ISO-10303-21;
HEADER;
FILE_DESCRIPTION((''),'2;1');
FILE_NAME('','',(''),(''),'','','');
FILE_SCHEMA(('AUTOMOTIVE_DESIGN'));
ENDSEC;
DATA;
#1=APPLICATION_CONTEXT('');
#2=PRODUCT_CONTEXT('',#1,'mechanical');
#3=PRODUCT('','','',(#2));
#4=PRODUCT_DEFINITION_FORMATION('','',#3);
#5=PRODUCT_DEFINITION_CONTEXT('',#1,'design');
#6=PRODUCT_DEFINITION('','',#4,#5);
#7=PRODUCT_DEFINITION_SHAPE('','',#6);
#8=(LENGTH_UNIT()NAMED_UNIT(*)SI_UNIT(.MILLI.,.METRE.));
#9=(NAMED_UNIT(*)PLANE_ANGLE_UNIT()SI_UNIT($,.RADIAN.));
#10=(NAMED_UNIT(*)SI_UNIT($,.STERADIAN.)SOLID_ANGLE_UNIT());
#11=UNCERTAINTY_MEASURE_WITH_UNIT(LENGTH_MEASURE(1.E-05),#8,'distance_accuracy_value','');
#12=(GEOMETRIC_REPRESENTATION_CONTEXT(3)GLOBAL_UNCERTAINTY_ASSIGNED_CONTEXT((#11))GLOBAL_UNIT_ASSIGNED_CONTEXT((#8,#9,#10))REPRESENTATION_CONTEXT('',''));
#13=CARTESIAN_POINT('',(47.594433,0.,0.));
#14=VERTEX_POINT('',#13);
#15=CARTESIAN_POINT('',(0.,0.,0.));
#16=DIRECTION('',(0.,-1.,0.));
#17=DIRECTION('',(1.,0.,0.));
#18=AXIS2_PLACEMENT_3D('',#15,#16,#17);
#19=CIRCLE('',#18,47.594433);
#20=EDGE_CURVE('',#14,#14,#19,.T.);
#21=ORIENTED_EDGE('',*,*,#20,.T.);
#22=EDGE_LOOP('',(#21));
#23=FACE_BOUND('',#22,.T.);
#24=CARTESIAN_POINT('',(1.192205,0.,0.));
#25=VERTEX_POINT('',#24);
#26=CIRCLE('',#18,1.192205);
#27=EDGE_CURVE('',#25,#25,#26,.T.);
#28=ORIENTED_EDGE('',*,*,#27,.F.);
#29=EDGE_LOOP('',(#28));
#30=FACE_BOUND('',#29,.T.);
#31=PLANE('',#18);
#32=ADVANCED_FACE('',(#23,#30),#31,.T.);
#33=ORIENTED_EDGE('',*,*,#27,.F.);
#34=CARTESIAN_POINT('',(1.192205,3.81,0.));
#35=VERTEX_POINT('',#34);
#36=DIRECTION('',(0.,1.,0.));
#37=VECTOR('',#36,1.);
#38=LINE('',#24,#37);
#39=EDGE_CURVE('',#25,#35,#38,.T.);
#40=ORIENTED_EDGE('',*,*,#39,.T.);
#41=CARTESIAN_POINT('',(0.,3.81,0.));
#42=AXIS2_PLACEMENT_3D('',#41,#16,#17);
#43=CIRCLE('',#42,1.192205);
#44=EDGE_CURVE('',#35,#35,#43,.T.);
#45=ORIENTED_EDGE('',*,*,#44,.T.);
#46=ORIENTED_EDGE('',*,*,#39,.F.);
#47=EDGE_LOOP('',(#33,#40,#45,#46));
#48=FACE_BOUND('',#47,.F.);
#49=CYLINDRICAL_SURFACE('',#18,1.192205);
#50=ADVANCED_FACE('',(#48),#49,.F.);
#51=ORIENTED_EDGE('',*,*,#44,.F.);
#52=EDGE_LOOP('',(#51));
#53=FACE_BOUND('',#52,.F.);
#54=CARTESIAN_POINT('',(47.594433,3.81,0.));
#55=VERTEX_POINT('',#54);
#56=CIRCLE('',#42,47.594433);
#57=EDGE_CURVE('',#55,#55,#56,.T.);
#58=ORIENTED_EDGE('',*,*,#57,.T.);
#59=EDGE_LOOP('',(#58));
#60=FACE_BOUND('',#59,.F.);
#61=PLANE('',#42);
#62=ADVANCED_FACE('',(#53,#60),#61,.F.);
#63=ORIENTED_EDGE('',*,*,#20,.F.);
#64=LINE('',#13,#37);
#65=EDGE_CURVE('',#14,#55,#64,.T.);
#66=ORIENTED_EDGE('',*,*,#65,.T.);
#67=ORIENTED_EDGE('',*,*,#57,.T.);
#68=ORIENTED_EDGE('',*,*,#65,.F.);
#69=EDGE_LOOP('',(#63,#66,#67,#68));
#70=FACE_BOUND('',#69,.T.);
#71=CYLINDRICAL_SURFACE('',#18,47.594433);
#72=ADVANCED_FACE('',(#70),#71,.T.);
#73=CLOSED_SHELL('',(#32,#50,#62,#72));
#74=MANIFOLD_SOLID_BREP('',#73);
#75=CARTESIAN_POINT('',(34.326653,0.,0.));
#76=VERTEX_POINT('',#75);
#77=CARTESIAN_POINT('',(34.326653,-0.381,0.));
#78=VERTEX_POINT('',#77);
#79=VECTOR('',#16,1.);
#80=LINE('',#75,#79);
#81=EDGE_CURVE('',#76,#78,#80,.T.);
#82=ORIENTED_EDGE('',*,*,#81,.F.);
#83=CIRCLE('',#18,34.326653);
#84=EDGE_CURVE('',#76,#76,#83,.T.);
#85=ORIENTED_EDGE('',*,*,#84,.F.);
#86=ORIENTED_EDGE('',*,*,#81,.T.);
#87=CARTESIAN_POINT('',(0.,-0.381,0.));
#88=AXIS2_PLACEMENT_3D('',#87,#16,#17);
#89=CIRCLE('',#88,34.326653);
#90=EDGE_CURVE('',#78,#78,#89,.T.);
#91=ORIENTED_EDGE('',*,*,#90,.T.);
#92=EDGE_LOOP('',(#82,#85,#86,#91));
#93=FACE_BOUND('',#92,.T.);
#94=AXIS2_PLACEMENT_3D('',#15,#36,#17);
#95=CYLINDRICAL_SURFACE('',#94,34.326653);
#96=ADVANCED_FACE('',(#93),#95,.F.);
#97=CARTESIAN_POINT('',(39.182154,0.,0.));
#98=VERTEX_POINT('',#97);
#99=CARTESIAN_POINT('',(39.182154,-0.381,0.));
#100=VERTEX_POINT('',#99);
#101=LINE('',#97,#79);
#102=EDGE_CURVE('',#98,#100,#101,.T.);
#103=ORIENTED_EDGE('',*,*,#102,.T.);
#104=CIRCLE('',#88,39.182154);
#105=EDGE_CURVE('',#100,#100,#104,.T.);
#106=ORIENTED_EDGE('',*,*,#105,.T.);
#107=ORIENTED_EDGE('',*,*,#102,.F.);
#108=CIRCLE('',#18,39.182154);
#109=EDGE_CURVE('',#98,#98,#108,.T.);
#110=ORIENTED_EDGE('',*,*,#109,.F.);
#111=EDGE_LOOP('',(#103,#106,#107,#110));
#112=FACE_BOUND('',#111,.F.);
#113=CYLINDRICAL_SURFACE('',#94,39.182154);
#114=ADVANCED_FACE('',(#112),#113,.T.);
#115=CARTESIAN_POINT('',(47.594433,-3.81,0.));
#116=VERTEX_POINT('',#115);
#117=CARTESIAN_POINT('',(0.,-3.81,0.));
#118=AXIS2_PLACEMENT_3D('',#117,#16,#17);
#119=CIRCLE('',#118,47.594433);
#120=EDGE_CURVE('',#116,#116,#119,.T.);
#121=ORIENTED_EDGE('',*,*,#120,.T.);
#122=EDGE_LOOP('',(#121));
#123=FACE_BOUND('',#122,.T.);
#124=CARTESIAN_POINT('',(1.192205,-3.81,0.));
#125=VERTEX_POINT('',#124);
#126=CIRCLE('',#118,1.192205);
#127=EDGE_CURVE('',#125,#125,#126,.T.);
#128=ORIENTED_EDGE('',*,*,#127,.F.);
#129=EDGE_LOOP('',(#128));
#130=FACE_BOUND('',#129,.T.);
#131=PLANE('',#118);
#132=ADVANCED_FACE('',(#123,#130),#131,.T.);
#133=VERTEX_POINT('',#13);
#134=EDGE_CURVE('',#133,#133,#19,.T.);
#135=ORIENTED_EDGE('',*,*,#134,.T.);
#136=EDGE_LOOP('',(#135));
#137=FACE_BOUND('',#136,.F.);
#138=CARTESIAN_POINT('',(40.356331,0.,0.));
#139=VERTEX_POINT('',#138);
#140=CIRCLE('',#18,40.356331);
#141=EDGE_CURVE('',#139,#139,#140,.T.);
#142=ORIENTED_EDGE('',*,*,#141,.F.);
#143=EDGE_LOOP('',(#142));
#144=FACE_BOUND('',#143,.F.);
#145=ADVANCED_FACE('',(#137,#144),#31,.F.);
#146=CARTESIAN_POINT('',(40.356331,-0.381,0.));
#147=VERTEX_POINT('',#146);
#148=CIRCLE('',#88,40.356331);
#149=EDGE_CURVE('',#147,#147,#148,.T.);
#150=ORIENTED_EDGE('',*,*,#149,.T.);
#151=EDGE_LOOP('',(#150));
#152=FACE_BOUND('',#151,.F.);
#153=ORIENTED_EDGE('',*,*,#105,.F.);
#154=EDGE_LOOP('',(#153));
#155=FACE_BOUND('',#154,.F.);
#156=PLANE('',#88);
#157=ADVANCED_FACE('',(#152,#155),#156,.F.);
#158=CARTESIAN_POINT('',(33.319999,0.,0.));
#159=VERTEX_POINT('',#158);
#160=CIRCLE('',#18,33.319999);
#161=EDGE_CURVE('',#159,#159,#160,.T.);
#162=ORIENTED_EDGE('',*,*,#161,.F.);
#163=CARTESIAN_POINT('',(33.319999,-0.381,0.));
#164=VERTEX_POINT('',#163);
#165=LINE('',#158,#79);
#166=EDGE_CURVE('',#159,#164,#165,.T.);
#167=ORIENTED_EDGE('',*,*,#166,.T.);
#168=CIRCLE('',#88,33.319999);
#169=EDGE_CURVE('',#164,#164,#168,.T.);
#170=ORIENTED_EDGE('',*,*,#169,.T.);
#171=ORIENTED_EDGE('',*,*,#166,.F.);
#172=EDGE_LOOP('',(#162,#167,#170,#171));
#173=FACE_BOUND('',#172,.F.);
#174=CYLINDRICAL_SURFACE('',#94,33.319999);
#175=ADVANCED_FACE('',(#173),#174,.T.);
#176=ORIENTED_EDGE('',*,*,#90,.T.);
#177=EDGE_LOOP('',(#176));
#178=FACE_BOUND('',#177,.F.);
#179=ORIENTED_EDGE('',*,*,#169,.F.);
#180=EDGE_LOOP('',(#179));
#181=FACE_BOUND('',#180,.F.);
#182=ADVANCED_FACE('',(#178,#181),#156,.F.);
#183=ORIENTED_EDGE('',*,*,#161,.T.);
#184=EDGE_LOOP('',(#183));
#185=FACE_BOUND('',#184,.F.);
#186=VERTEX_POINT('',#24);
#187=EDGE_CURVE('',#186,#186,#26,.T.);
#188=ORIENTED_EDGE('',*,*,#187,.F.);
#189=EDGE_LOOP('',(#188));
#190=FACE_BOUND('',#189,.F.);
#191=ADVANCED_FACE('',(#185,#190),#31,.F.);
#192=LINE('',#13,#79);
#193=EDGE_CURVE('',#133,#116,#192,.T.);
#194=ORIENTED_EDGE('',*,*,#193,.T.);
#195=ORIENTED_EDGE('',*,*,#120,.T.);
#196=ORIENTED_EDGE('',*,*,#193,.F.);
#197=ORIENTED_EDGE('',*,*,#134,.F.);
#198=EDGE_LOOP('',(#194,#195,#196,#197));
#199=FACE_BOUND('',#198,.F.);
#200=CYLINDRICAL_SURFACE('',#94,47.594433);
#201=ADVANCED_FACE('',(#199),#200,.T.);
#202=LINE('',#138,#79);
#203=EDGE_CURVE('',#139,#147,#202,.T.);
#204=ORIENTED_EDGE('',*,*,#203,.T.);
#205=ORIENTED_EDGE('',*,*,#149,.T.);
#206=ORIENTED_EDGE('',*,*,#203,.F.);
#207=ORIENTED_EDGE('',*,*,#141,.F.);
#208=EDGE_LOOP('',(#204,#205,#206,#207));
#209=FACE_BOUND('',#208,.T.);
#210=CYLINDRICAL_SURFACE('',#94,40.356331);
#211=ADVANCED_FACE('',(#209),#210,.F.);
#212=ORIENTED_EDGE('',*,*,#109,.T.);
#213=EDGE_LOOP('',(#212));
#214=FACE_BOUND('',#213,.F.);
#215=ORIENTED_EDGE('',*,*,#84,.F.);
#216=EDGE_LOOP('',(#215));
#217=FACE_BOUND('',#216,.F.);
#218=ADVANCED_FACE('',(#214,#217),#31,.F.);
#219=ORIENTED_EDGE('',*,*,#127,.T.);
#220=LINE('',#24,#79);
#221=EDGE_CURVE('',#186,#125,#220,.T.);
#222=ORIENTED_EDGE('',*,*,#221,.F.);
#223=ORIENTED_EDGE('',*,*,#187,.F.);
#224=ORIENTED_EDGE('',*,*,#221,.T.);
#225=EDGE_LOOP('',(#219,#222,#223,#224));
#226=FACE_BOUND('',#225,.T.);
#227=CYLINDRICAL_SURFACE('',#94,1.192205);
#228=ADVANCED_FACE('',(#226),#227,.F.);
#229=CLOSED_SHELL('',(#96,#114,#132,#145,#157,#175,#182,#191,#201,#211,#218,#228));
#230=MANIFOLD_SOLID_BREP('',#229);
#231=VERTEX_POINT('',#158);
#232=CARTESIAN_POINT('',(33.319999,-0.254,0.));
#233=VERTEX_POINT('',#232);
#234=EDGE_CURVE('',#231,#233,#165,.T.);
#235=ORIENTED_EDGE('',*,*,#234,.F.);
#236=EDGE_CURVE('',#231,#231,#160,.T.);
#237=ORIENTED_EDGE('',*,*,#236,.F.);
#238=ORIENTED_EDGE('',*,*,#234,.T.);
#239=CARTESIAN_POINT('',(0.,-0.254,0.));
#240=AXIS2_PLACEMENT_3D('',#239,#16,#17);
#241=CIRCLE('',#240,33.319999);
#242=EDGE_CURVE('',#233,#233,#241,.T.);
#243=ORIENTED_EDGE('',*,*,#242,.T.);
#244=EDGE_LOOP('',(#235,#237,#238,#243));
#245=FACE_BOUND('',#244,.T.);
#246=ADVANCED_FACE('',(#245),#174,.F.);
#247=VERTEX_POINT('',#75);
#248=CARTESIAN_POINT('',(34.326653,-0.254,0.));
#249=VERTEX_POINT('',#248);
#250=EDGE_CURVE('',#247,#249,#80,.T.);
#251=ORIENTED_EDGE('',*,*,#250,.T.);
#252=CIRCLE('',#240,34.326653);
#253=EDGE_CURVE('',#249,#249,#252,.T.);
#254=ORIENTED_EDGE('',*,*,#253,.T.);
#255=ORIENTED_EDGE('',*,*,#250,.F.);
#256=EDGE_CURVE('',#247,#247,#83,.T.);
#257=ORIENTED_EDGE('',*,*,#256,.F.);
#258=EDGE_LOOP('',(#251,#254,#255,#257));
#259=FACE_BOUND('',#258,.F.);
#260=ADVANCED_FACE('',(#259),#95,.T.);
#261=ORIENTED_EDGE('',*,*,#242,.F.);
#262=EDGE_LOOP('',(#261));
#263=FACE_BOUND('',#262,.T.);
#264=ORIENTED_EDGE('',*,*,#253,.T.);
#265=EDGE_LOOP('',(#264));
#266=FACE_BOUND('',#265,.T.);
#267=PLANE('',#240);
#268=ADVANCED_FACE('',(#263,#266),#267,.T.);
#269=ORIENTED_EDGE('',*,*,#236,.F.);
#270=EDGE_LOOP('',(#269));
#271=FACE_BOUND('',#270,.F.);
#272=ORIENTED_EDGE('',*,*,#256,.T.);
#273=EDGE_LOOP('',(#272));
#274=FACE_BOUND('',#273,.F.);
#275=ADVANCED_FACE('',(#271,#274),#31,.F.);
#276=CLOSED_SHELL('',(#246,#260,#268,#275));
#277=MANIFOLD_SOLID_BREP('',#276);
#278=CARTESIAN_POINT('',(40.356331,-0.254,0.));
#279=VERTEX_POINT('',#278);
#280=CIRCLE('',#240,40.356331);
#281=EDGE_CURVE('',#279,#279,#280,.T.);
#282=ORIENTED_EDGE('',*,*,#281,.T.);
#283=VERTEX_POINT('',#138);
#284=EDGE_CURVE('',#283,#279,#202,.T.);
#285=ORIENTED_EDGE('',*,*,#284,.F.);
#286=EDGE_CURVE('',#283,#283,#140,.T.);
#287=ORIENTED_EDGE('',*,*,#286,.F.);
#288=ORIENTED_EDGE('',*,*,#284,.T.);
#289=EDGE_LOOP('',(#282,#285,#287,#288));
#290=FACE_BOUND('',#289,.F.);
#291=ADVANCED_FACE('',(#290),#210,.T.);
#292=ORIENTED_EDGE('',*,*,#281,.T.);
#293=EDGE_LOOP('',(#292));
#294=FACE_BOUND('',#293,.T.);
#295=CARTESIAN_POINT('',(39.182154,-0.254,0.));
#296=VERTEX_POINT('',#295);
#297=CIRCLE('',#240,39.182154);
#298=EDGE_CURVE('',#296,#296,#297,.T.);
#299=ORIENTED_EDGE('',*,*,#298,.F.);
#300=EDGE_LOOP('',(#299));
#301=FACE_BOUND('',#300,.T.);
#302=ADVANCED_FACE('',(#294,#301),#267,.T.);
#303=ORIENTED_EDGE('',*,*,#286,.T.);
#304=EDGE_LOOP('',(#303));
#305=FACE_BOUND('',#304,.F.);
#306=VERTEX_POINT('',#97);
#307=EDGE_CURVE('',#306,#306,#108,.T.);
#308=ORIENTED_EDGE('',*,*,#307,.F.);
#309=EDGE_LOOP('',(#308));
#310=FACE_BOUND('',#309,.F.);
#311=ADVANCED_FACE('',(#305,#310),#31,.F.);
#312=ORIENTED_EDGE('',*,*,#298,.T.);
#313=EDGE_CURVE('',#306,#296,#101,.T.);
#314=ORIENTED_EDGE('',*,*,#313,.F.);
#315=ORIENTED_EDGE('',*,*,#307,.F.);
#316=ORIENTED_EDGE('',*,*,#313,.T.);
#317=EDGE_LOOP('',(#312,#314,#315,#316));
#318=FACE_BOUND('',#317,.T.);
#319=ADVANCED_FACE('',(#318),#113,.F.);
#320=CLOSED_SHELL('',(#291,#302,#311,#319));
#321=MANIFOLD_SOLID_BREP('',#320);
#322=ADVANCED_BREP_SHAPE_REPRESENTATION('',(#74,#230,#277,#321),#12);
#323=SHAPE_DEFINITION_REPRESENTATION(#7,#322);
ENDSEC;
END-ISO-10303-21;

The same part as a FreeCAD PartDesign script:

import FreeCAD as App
import Part
import Sketcher

V = App.Vector
Q = App.Units.Quantity

doc = App.newDocument("Part")
body = doc.addObject("PartDesign::Body", "Body")

# Sketch on XZ plane
sketch1 = body.newObject("Sketcher::SketchObject", "Sketch")
sketch1.AttachmentSupport = (doc.getObject("XZ_Plane"), [""])
sketch1.MapMode = "FlatFace"
sketch1.addGeometry(Part.Circle(V(0, 0, 0), V(0, 0, 1), 40), False)
sketch1.addGeometry(Part.Circle(V(0, 0, 0), V(0, 0, 1), 39), False)
sketch1.addConstraint(Sketcher.Constraint("Coincident", 0, 3, -1, 1))
sketch1.addConstraint(Sketcher.Constraint("Coincident", 1, 3, -1, 1))
sketch1.addConstraint(Sketcher.Constraint("Diameter", 0, Q("80.712661 mm")))
sketch1.addConstraint(Sketcher.Constraint("Diameter", 1, Q("78.364308 mm")))
pad1 = body.newObject("PartDesign::Pad", "Pad")
pad1.Profile = sketch1
pad1.Length = Q("0.01 in")
body2 = doc.addObject("PartDesign::Body", "Body001")

# Sketch on XZ plane
sketch2 = body2.newObject("Sketcher::SketchObject", "Sketch001")
sketch2.AttachmentSupport = (doc.getObject("XZ_Plane001"), [""])
sketch2.MapMode = "FlatFace"
sketch2.addGeometry(Part.Circle(V(0, 0, 0), V(0, 0, 1), 34), False)
sketch2.addGeometry(Part.Circle(V(0, 0, 0), V(0, 0, 1), 33), False)
sketch2.addConstraint(Sketcher.Constraint("Coincident", 0, 3, -1, 1))
sketch2.addConstraint(Sketcher.Constraint("Coincident", 1, 3, -1, 1))
sketch2.addConstraint(Sketcher.Constraint("Diameter", 0, Q("68.653305 mm")))
sketch2.addConstraint(Sketcher.Constraint("Diameter", 1, Q("66.639998 mm")))
pad2 = body2.newObject("PartDesign::Pad", "Pad001")
pad2.Profile = sketch2
pad2.Length = Q("0.01 in")
body3 = doc.addObject("PartDesign::Body", "Body002")

# Sketch on XZ plane
sketch3 = body3.newObject("Sketcher::SketchObject", "Sketch002")
sketch3.AttachmentSupport = (doc.getObject("XZ_Plane002"), [""])
sketch3.MapMode = "FlatFace"
sketch3.addGeometry(Part.Circle(V(0, 0, 0), V(0, 0, 1), 47.6), False)
sketch3.addGeometry(Part.Circle(V(0, 0, 0), V(0, 0, 1), 1.2), False)
sketch3.addConstraint(Sketcher.Constraint("Coincident", 0, 3, -1, 1))
sketch3.addConstraint(Sketcher.Constraint("Coincident", 1, 3, -1, 1))
sketch3.addConstraint(Sketcher.Constraint("Diameter", 1, Q("2.384411 mm")))
sketch3.addConstraint(Sketcher.Constraint("Diameter", 0, Q("95.188865 mm")))
pad3 = body3.newObject("PartDesign::Pad", "Pad002")
pad3.Profile = sketch3
pad3.Length = Q("0.15 in")
pad3.Reversed = True
body4 = doc.addObject("PartDesign::Body", "Body003")

# Sketch on XZ plane
sketch4 = body4.newObject("Sketcher::SketchObject", "Sketch003")
sketch4.AttachmentSupport = (doc.getObject("XZ_Plane003"), [""])
sketch4.MapMode = "FlatFace"
sketch4.addGeometry(Part.Circle(V(0, 0, 0), V(0, 0, 1), 47.6), False)
sketch4.addGeometry(Part.Circle(V(0, 0, 0), V(0, 0, 1), 1.2), False)
sketch4.addConstraint(Sketcher.Constraint("Coincident", 0, 3, -1, 1))
sketch4.addConstraint(Sketcher.Constraint("Coincident", 1, 3, -1, 1))
sketch4.addConstraint(Sketcher.Constraint("Diameter", 1, Q("2.384411 mm")))
sketch4.addConstraint(Sketcher.Constraint("Diameter", 0, Q("95.188865 mm")))
pad4 = body4.newObject("PartDesign::Pad", "Pad003")
pad4.Profile = sketch4
pad4.Length = Q("0.15 in")
body5 = doc.addObject("PartDesign::Body", "Body004")

# Sketch on XZ plane
sketch5 = body5.newObject("Sketcher::SketchObject", "Sketch004")
sketch5.AttachmentSupport = (doc.getObject("XZ_Plane004"), [""])
sketch5.MapMode = "FlatFace"
sketch5.addGeometry(Part.Circle(V(0, 0, 0), V(0, 0, 1), 40), False)
sketch5.addGeometry(Part.Circle(V(0, 0, 0), V(0, 0, 1), 39), False)
sketch5.addConstraint(Sketcher.Constraint("Coincident", 0, 3, -1, 1))
sketch5.addConstraint(Sketcher.Constraint("Coincident", 1, 3, -1, 1))
sketch5.addConstraint(Sketcher.Constraint("Diameter", 0, Q("80.712661 mm")))
sketch5.addConstraint(Sketcher.Constraint("Diameter", 1, Q("78.364308 mm")))
pad5 = body5.newObject("PartDesign::Pad", "Pad004")
pad5.Profile = sketch5
pad5.Length = Q("0.015 in")
body6 = doc.addObject("PartDesign::Body", "Body005")

# Sketch on XZ plane
sketch6 = body6.newObject("Sketcher::SketchObject", "Sketch005")
sketch6.AttachmentSupport = (doc.getObject("XZ_Plane005"), [""])
sketch6.MapMode = "FlatFace"
sketch6.addGeometry(Part.Circle(V(0, 0, 0), V(0, 0, 1), 34), False)
sketch6.addGeometry(Part.Circle(V(0, 0, 0), V(0, 0, 1), 33), False)
sketch6.addConstraint(Sketcher.Constraint("Coincident", 0, 3, -1, 1))
sketch6.addConstraint(Sketcher.Constraint("Coincident", 1, 3, -1, 1))
sketch6.addConstraint(Sketcher.Constraint("Diameter", 0, Q("68.653305 mm")))
sketch6.addConstraint(Sketcher.Constraint("Diameter", 1, Q("66.639998 mm")))
pad6 = body6.newObject("PartDesign::Pad", "Pad005")
pad6.Profile = sketch6
pad6.Length = Q("0.015 in")
doc.recompute()

boolean = body4.newObject("PartDesign::Boolean", "Boolean")
boolean.Type = "Cut"
boolean.addObjects([body5])
doc.recompute()

boolean2 = body4.newObject("PartDesign::Boolean", "Boolean001")
boolean2.Type = "Cut"
boolean2.addObjects([body6])

doc.recompute()
